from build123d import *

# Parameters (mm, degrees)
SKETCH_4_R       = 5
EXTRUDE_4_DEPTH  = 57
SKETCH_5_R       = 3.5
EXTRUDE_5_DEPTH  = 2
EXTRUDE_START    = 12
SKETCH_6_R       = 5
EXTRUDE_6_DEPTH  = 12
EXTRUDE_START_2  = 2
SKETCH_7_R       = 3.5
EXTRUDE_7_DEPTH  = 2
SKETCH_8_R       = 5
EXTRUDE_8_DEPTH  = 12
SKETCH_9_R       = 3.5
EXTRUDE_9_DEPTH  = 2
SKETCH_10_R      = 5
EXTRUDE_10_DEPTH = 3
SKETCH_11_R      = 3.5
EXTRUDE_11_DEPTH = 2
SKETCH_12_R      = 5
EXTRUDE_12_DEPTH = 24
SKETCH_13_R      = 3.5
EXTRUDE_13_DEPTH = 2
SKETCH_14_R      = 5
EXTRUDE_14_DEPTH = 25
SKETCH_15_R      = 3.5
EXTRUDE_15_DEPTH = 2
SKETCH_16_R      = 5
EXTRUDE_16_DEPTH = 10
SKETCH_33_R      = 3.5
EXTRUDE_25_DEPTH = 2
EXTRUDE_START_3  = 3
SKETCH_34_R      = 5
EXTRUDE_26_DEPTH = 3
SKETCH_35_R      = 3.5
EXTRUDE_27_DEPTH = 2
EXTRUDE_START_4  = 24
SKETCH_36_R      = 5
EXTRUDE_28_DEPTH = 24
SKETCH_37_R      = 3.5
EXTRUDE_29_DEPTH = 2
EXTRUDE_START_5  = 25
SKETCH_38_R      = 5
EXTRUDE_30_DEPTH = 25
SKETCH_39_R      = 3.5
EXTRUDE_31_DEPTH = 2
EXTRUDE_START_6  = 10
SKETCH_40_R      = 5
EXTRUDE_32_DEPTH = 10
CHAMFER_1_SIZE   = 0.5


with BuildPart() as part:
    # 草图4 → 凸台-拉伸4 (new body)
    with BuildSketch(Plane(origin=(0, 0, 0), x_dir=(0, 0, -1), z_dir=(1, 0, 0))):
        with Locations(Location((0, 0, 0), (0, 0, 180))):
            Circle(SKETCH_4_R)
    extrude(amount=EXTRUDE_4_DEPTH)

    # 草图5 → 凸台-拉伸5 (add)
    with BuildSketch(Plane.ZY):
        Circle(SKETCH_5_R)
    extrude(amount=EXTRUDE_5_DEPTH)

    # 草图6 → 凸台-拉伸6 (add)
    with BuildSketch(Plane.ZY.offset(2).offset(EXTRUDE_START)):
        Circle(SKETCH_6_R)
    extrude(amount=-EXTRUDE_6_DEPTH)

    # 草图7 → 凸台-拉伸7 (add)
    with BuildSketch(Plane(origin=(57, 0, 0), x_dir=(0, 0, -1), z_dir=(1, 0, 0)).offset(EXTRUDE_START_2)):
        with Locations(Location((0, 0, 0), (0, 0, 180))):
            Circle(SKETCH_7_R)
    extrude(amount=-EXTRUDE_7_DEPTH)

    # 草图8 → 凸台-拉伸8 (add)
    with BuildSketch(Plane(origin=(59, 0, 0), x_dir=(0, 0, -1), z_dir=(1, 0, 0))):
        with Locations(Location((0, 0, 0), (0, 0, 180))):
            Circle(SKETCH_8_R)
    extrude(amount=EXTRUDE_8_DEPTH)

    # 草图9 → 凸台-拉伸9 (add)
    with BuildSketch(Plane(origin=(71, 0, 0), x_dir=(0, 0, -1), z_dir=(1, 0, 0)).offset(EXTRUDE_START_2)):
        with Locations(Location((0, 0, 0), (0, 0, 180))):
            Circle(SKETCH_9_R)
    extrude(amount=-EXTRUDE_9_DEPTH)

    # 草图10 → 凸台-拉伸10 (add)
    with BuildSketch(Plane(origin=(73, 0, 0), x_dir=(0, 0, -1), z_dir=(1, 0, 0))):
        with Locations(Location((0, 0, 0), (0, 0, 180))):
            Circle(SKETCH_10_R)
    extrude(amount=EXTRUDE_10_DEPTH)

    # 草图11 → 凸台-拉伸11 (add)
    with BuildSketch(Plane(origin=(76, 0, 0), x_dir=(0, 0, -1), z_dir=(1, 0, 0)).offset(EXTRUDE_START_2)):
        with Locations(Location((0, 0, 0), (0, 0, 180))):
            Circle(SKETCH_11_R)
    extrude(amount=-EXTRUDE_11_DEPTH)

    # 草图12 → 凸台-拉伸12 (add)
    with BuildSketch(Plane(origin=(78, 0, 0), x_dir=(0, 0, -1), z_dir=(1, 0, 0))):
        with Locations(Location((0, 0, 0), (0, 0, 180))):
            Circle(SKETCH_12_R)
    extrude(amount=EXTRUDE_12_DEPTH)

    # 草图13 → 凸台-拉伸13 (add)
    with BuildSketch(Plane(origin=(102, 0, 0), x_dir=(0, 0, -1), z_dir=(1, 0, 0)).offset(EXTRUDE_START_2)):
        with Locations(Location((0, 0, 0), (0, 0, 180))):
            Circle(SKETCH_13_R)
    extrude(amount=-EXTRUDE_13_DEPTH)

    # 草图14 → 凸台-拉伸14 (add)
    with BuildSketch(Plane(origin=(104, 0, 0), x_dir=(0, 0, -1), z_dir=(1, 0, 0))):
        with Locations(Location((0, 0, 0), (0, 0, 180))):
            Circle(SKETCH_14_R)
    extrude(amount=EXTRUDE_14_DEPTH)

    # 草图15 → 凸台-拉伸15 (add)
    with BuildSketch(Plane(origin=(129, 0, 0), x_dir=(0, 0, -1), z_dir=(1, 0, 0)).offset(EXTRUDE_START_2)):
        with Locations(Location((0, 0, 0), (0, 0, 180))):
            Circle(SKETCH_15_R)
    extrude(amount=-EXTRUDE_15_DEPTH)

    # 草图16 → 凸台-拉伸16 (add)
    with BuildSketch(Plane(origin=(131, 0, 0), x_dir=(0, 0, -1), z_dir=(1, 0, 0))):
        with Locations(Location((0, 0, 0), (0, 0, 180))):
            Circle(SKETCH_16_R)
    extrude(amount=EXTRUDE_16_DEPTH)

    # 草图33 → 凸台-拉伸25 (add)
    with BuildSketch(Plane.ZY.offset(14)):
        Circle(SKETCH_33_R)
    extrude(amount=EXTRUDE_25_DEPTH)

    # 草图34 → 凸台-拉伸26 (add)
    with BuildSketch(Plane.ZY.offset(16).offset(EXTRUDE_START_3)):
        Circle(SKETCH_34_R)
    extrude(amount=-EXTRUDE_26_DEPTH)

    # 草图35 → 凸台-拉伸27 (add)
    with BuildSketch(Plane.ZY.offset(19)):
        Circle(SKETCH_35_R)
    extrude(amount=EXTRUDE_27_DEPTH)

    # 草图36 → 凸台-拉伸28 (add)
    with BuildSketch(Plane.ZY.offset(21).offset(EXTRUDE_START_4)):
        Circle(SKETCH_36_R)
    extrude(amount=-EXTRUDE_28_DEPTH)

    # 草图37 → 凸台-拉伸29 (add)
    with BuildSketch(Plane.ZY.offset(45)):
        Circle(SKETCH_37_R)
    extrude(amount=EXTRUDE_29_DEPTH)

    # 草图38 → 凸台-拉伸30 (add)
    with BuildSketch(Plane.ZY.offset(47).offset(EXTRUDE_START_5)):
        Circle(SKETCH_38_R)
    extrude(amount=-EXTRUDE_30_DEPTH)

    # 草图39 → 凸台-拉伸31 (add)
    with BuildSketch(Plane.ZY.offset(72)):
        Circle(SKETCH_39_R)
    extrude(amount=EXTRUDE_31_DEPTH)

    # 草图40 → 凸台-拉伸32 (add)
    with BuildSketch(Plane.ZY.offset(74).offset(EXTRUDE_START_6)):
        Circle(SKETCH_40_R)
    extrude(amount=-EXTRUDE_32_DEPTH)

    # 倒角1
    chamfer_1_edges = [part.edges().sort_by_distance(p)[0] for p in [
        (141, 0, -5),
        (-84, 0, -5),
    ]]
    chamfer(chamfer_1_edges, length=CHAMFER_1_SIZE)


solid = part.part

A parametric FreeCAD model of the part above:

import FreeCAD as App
import Part
import Sketcher
from FreeCAD import Vector


def edges_at(feature, points):
    """Names of the edges that pass closest to the given points."""
    edges = feature.Shape.Edges
    near = lambda p: min(range(len(edges)), key=lambda i: edges[i].distToShape(Part.Vertex(*p))[0])
    return sorted({f"Edge{near(p) + 1}" for p in points})

doc = App.newDocument("Part")
body = doc.addObject("PartDesign::Body", "Body")

# Sketch on YZ plane
sketch1 = body.newObject("Sketcher::SketchObject", "Sketch")
sketch1.AttachmentSupport = (doc.getObject("YZ_Plane"), [""])
sketch1.MapMode = "FlatFace"
sketch1.addGeometry(Part.Circle(Vector(0, 0, 0), Vector(0, 0, 1), 5), False)
sketch1.addConstraint([
    Sketcher.Constraint("Coincident", 0, 3, -1, 1),
    Sketcher.Constraint("Diameter", 0, 10.0),
])
pad1 = body.newObject("PartDesign::Pad", "Pad")
pad1.Profile = sketch1
pad1.Length = 57

# Sketch on YZ plane
sketch2 = body.newObject("Sketcher::SketchObject", "Sketch001")
sketch2.AttachmentSupport = (doc.getObject("YZ_Plane"), [""])
sketch2.MapMode = "FlatFace"
sketch2.addGeometry(Part.Circle(Vector(0, 0, 0), Vector(0, 0, 1), 3.5), False)
sketch2.addConstraint([
    Sketcher.Constraint("Coincident", 0, 3, -1, 1),
    Sketcher.Constraint("Diameter", 0, 7.0),
])
pad2 = body.newObject("PartDesign::Pad", "Pad001")
pad2.Profile = sketch2
pad2.Length = 2
pad2.Reversed = True

# Sketch on YZ plane
sketch3 = body.newObject("Sketcher::SketchObject", "Sketch002")
sketch3.AttachmentSupport = (doc.getObject("YZ_Plane"), [""])
sketch3.MapMode = "FlatFace"
sketch3.AttachmentOffset = App.Placement(Vector(0, 0, -14), App.Rotation())
sketch3.addGeometry(Part.Circle(Vector(0, 0, 0), Vector(0, 0, 1), 5), False)
sketch3.addConstraint([
    Sketcher.Constraint("Coincident", 0, 3, -1, 1),
    Sketcher.Constraint("Diameter", 0, 10.0),
])
pad3 = body.newObject("PartDesign::Pad", "Pad002")
pad3.Profile = sketch3
pad3.Length = 12

# Sketch on YZ plane
sketch4 = body.newObject("Sketcher::SketchObject", "Sketch003")
sketch4.AttachmentSupport = (doc.getObject("YZ_Plane"), [""])
sketch4.MapMode = "FlatFace"
sketch4.AttachmentOffset = App.Placement(Vector(0, 0, 59), App.Rotation())
sketch4.addGeometry(Part.Circle(Vector(0, 0, 0), Vector(0, 0, 1), 3.5), False)
sketch4.addConstraint([
    Sketcher.Constraint("Coincident", 0, 3, -1, 1),
    Sketcher.Constraint("Diameter", 0, 7.0),
])
pad4 = body.newObject("PartDesign::Pad", "Pad003")
pad4.Profile = sketch4
pad4.Length = 2
pad4.Reversed = True

# Sketch on YZ plane
sketch5 = body.newObject("Sketcher::SketchObject", "Sketch004")
sketch5.AttachmentSupport = (doc.getObject("YZ_Plane"), [""])
sketch5.MapMode = "FlatFace"
sketch5.AttachmentOffset = App.Placement(Vector(0, 0, 59), App.Rotation())
sketch5.addGeometry(Part.Circle(Vector(0, 0, 0), Vector(0, 0, 1), 5), False)
sketch5.addConstraint([
    Sketcher.Constraint("Coincident", 0, 3, -1, 1),
    Sketcher.Constraint("Diameter", 0, 10.0),
])
pad5 = body.newObject("PartDesign::Pad", "Pad004")
pad5.Profile = sketch5
pad5.Length = 12

# Sketch on YZ plane
sketch6 = body.newObject("Sketcher::SketchObject", "Sketch005")
sketch6.AttachmentSupport = (doc.getObject("YZ_Plane"), [""])
sketch6.MapMode = "FlatFace"
sketch6.AttachmentOffset = App.Placement(Vector(0, 0, 73), App.Rotation())
sketch6.addGeometry(Part.Circle(Vector(0, 0, 0), Vector(0, 0, 1), 3.5), False)
sketch6.addConstraint([
    Sketcher.Constraint("Coincident", 0, 3, -1, 1),
    Sketcher.Constraint("Diameter", 0, 7.0),
])
pad6 = body.newObject("PartDesign::Pad", "Pad005")
pad6.Profile = sketch6
pad6.Length = 2
pad6.Reversed = True

# Sketch on YZ plane
sketch7 = body.newObject("Sketcher::SketchObject", "Sketch006")
sketch7.AttachmentSupport = (doc.getObject("YZ_Plane"), [""])
sketch7.MapMode = "FlatFace"
sketch7.AttachmentOffset = App.Placement(Vector(0, 0, 73), App.Rotation())
sketch7.addGeometry(Part.Circle(Vector(0, 0, 0), Vector(0, 0, 1), 5), False)
sketch7.addConstraint([
    Sketcher.Constraint("Coincident", 0, 3, -1, 1),
    Sketcher.Constraint("Diameter", 0, 10.0),
])
pad7 = body.newObject("PartDesign::Pad", "Pad006")
pad7.Profile = sketch7
pad7.Length = 3

# Sketch on YZ plane
sketch8 = body.newObject("Sketcher::SketchObject", "Sketch007")
sketch8.AttachmentSupport = (doc.getObject("YZ_Plane"), [""])
sketch8.MapMode = "FlatFace"
sketch8.AttachmentOffset = App.Placement(Vector(0, 0, 78), App.Rotation())
sketch8.addGeometry(Part.Circle(Vector(0, 0, 0), Vector(0, 0, 1), 3.5), False)
sketch8.addConstraint([
    Sketcher.Constraint("Coincident", 0, 3, -1, 1),
    Sketcher.Constraint("Diameter", 0, 7.0),
])
pad8 = body.newObject("PartDesign::Pad", "Pad007")
pad8.Profile = sketch8
pad8.Length = 2
pad8.Reversed = True

# Sketch on YZ plane
sketch9 = body.newObject("Sketcher::SketchObject", "Sketch008")
sketch9.AttachmentSupport = (doc.getObject("YZ_Plane"), [""])
sketch9.MapMode = "FlatFace"
sketch9.AttachmentOffset = App.Placement(Vector(0, 0, 78), App.Rotation())
sketch9.addGeometry(Part.Circle(Vector(0, 0, 0), Vector(0, 0, 1), 5), False)
sketch9.addConstraint([
    Sketcher.Constraint("Coincident", 0, 3, -1, 1),
    Sketcher.Constraint("Diameter", 0, 10.0),
])
pad9 = body.newObject("PartDesign::Pad", "Pad008")
pad9.Profile = sketch9
pad9.Length = 24

# Sketch on YZ plane
sketch10 = body.newObject("Sketcher::SketchObject", "Sketch009")
sketch10.AttachmentSupport = (doc.getObject("YZ_Plane"), [""])
sketch10.MapMode = "FlatFace"
sketch10.AttachmentOffset = App.Placement(Vector(0, 0, 104), App.Rotation())
sketch10.addGeometry(Part.Circle(Vector(0, 0, 0), Vector(0, 0, 1), 3.5), False)
sketch10.addConstraint([
    Sketcher.Constraint("Coincident", 0, 3, -1, 1),
    Sketcher.Constraint("Diameter", 0, 7.0),
])
pad10 = body.newObject("PartDesign::Pad", "Pad009")
pad10.Profile = sketch10
pad10.Length = 2
pad10.Reversed = True

# Sketch on YZ plane
sketch11 = body.newObject("Sketcher::SketchObject", "Sketch010")
sketch11.AttachmentSupport = (doc.getObject("YZ_Plane"), [""])
sketch11.MapMode = "FlatFace"
sketch11.AttachmentOffset = App.Placement(Vector(0, 0, 104), App.Rotation())
sketch11.addGeometry(Part.Circle(Vector(0, 0, 0), Vector(0, 0, 1), 5), False)
sketch11.addConstraint([
    Sketcher.Constraint("Coincident", 0, 3, -1, 1),
    Sketcher.Constraint("Diameter", 0, 10.0),
])
pad11 = body.newObject("PartDesign::Pad", "Pad010")
pad11.Profile = sketch11
pad11.Length = 25

# Sketch on YZ plane
sketch12 = body.newObject("Sketcher::SketchObject", "Sketch011")
sketch12.AttachmentSupport = (doc.getObject("YZ_Plane"), [""])
sketch12.MapMode = "FlatFace"
sketch12.AttachmentOffset = App.Placement(Vector(0, 0, 131), App.Rotation())
sketch12.addGeometry(Part.Circle(Vector(0, 0, 0), Vector(0, 0, 1), 3.5), False)
sketch12.addConstraint([
    Sketcher.Constraint("Coincident", 0, 3, -1, 1),
    Sketcher.Constraint("Diameter", 0, 7.0),
])
pad12 = body.newObject("PartDesign::Pad", "Pad011")
pad12.Profile = sketch12
pad12.Length = 2
pad12.Reversed = True

# Sketch on YZ plane
sketch13 = body.newObject("Sketcher::SketchObject", "Sketch012")
sketch13.AttachmentSupport = (doc.getObject("YZ_Plane"), [""])
sketch13.MapMode = "FlatFace"
sketch13.AttachmentOffset = App.Placement(Vector(0, 0, 131), App.Rotation())
sketch13.addGeometry(Part.Circle(Vector(0, 0, 0), Vector(0, 0, 1), 5), False)
sketch13.addConstraint([
    Sketcher.Constraint("Coincident", 0, 3, -1, 1),
    Sketcher.Constraint("Diameter", 0, 10.0),
])
pad13 = body.newObject("PartDesign::Pad", "Pad012")
pad13.Profile = sketch13
pad13.Length = 10

# Sketch on YZ plane
sketch14 = body.newObject("Sketcher::SketchObject", "Sketch013")
sketch14.AttachmentSupport = (doc.getObject("YZ_Plane"), [""])
sketch14.MapMode = "FlatFace"
sketch14.AttachmentOffset = App.Placement(Vector(0, 0, -14), App.Rotation())
sketch14.addGeometry(Part.Circle(Vector(0, 0, 0), Vector(0, 0, 1), 3.5), False)
sketch14.addConstraint([
    Sketcher.Constraint("Coincident", 0, 3, -1, 1),
    Sketcher.Constraint("Diameter", 0, 7.0),
])
pad14 = body.newObject("PartDesign::Pad", "Pad013")
pad14.Profile = sketch14
pad14.Length = 2
pad14.Reversed = True

# Sketch on YZ plane
sketch15 = body.newObject("Sketcher::SketchObject", "Sketch014")
sketch15.AttachmentSupport = (doc.getObject("YZ_Plane"), [""])
sketch15.MapMode = "FlatFace"
sketch15.AttachmentOffset = App.Placement(Vector(0, 0, -19), App.Rotation())
sketch15.addGeometry(Part.Circle(Vector(0, 0, 0), Vector(0, 0, 1), 5), False)
sketch15.addConstraint([
    Sketcher.Constraint("Coincident", 0, 3, -1, 1),
    Sketcher.Constraint("Diameter", 0, 10.0),
])
pad15 = body.newObject("PartDesign::Pad", "Pad014")
pad15.Profile = sketch15
pad15.Length = 3

# Sketch on YZ plane
sketch16 = body.newObject("Sketcher::SketchObject", "Sketch015")
sketch16.AttachmentSupport = (doc.getObject("YZ_Plane"), [""])
sketch16.MapMode = "FlatFace"
sketch16.AttachmentOffset = App.Placement(Vector(0, 0, -19), App.Rotation())
sketch16.addGeometry(Part.Circle(Vector(0, 0, 0), Vector(0, 0, 1), 3.5), False)
sketch16.addConstraint([
    Sketcher.Constraint("Coincident", 0, 3, -1, 1),
    Sketcher.Constraint("Diameter", 0, 7.0),
])
pad16 = body.newObject("PartDesign::Pad", "Pad015")
pad16.Profile = sketch16
pad16.Length = 2
pad16.Reversed = True

# Sketch on YZ plane
sketch17 = body.newObject("Sketcher::SketchObject", "Sketch016")
sketch17.AttachmentSupport = (doc.getObject("YZ_Plane"), [""])
sketch17.MapMode = "FlatFace"
sketch17.AttachmentOffset = App.Placement(Vector(0, 0, -45), App.Rotation())
sketch17.addGeometry(Part.Circle(Vector(0, 0, 0), Vector(0, 0, 1), 5), False)
sketch17.addConstraint([
    Sketcher.Constraint("Coincident", 0, 3, -1, 1),
    Sketcher.Constraint("Diameter", 0, 10.0),
])
pad17 = body.newObject("PartDesign::Pad", "Pad016")
pad17.Profile = sketch17
pad17.Length = 24

# Sketch on YZ plane
sketch18 = body.newObject("Sketcher::SketchObject", "Sketch017")
sketch18.AttachmentSupport = (doc.getObject("YZ_Plane"), [""])
sketch18.MapMode = "FlatFace"
sketch18.AttachmentOffset = App.Placement(Vector(0, 0, -45), App.Rotation())
sketch18.addGeometry(Part.Circle(Vector(0, 0, 0), Vector(0, 0, 1), 3.5), False)
sketch18.addConstraint([
    Sketcher.Constraint("Coincident", 0, 3, -1, 1),
    Sketcher.Constraint("Diameter", 0, 7.0),
])
pad18 = body.newObject("PartDesign::Pad", "Pad017")
pad18.Profile = sketch18
pad18.Length = 2
pad18.Reversed = True

# Sketch on YZ plane
sketch19 = body.newObject("Sketcher::SketchObject", "Sketch018")
sketch19.AttachmentSupport = (doc.getObject("YZ_Plane"), [""])
sketch19.MapMode = "FlatFace"
sketch19.AttachmentOffset = App.Placement(Vector(0, 0, -72), App.Rotation())
sketch19.addGeometry(Part.Circle(Vector(0, 0, 0), Vector(0, 0, 1), 5), False)
sketch19.addConstraint([
    Sketcher.Constraint("Coincident", 0, 3, -1, 1),
    Sketcher.Constraint("Diameter", 0, 10.0),
])
pad19 = body.newObject("PartDesign::Pad", "Pad018")
pad19.Profile = sketch19
pad19.Length = 25

# Sketch on YZ plane
sketch20 = body.newObject("Sketcher::SketchObject", "Sketch019")
sketch20.AttachmentSupport = (doc.getObject("YZ_Plane"), [""])
sketch20.MapMode = "FlatFace"
sketch20.AttachmentOffset = App.Placement(Vector(0, 0, -72), App.Rotation())
sketch20.addGeometry(Part.Circle(Vector(0, 0, 0), Vector(0, 0, 1), 3.5), False)
sketch20.addConstraint([
    Sketcher.Constraint("Coincident", 0, 3, -1, 1),
    Sketcher.Constraint("Diameter", 0, 7.0),
])
pad20 = body.newObject("PartDesign::Pad", "Pad019")
pad20.Profile = sketch20
pad20.Length = 2
pad20.Reversed = True

# Sketch on YZ plane
sketch21 = body.newObject("Sketcher::SketchObject", "Sketch020")
sketch21.AttachmentSupport = (doc.getObject("YZ_Plane"), [""])
sketch21.MapMode = "FlatFace"
sketch21.AttachmentOffset = App.Placement(Vector(0, 0, -84), App.Rotation())
sketch21.addGeometry(Part.Circle(Vector(0, 0, 0), Vector(0, 0, 1), 5), False)
sketch21.addConstraint([
    Sketcher.Constraint("Coincident", 0, 3, -1, 1),
    Sketcher.Constraint("Diameter", 0, 10.0),
])
pad21 = body.newObject("PartDesign::Pad", "Pad020")
pad21.Profile = sketch21
pad21.Length = 10
doc.recompute()

chamfer = body.newObject("PartDesign::Chamfer", "Chamfer")
chamfer.Base = (pad21, edges_at(pad21, [(141, 0, -5), (-84, 0, -5)]))
chamfer.Size = 0.5

doc.recompute()
